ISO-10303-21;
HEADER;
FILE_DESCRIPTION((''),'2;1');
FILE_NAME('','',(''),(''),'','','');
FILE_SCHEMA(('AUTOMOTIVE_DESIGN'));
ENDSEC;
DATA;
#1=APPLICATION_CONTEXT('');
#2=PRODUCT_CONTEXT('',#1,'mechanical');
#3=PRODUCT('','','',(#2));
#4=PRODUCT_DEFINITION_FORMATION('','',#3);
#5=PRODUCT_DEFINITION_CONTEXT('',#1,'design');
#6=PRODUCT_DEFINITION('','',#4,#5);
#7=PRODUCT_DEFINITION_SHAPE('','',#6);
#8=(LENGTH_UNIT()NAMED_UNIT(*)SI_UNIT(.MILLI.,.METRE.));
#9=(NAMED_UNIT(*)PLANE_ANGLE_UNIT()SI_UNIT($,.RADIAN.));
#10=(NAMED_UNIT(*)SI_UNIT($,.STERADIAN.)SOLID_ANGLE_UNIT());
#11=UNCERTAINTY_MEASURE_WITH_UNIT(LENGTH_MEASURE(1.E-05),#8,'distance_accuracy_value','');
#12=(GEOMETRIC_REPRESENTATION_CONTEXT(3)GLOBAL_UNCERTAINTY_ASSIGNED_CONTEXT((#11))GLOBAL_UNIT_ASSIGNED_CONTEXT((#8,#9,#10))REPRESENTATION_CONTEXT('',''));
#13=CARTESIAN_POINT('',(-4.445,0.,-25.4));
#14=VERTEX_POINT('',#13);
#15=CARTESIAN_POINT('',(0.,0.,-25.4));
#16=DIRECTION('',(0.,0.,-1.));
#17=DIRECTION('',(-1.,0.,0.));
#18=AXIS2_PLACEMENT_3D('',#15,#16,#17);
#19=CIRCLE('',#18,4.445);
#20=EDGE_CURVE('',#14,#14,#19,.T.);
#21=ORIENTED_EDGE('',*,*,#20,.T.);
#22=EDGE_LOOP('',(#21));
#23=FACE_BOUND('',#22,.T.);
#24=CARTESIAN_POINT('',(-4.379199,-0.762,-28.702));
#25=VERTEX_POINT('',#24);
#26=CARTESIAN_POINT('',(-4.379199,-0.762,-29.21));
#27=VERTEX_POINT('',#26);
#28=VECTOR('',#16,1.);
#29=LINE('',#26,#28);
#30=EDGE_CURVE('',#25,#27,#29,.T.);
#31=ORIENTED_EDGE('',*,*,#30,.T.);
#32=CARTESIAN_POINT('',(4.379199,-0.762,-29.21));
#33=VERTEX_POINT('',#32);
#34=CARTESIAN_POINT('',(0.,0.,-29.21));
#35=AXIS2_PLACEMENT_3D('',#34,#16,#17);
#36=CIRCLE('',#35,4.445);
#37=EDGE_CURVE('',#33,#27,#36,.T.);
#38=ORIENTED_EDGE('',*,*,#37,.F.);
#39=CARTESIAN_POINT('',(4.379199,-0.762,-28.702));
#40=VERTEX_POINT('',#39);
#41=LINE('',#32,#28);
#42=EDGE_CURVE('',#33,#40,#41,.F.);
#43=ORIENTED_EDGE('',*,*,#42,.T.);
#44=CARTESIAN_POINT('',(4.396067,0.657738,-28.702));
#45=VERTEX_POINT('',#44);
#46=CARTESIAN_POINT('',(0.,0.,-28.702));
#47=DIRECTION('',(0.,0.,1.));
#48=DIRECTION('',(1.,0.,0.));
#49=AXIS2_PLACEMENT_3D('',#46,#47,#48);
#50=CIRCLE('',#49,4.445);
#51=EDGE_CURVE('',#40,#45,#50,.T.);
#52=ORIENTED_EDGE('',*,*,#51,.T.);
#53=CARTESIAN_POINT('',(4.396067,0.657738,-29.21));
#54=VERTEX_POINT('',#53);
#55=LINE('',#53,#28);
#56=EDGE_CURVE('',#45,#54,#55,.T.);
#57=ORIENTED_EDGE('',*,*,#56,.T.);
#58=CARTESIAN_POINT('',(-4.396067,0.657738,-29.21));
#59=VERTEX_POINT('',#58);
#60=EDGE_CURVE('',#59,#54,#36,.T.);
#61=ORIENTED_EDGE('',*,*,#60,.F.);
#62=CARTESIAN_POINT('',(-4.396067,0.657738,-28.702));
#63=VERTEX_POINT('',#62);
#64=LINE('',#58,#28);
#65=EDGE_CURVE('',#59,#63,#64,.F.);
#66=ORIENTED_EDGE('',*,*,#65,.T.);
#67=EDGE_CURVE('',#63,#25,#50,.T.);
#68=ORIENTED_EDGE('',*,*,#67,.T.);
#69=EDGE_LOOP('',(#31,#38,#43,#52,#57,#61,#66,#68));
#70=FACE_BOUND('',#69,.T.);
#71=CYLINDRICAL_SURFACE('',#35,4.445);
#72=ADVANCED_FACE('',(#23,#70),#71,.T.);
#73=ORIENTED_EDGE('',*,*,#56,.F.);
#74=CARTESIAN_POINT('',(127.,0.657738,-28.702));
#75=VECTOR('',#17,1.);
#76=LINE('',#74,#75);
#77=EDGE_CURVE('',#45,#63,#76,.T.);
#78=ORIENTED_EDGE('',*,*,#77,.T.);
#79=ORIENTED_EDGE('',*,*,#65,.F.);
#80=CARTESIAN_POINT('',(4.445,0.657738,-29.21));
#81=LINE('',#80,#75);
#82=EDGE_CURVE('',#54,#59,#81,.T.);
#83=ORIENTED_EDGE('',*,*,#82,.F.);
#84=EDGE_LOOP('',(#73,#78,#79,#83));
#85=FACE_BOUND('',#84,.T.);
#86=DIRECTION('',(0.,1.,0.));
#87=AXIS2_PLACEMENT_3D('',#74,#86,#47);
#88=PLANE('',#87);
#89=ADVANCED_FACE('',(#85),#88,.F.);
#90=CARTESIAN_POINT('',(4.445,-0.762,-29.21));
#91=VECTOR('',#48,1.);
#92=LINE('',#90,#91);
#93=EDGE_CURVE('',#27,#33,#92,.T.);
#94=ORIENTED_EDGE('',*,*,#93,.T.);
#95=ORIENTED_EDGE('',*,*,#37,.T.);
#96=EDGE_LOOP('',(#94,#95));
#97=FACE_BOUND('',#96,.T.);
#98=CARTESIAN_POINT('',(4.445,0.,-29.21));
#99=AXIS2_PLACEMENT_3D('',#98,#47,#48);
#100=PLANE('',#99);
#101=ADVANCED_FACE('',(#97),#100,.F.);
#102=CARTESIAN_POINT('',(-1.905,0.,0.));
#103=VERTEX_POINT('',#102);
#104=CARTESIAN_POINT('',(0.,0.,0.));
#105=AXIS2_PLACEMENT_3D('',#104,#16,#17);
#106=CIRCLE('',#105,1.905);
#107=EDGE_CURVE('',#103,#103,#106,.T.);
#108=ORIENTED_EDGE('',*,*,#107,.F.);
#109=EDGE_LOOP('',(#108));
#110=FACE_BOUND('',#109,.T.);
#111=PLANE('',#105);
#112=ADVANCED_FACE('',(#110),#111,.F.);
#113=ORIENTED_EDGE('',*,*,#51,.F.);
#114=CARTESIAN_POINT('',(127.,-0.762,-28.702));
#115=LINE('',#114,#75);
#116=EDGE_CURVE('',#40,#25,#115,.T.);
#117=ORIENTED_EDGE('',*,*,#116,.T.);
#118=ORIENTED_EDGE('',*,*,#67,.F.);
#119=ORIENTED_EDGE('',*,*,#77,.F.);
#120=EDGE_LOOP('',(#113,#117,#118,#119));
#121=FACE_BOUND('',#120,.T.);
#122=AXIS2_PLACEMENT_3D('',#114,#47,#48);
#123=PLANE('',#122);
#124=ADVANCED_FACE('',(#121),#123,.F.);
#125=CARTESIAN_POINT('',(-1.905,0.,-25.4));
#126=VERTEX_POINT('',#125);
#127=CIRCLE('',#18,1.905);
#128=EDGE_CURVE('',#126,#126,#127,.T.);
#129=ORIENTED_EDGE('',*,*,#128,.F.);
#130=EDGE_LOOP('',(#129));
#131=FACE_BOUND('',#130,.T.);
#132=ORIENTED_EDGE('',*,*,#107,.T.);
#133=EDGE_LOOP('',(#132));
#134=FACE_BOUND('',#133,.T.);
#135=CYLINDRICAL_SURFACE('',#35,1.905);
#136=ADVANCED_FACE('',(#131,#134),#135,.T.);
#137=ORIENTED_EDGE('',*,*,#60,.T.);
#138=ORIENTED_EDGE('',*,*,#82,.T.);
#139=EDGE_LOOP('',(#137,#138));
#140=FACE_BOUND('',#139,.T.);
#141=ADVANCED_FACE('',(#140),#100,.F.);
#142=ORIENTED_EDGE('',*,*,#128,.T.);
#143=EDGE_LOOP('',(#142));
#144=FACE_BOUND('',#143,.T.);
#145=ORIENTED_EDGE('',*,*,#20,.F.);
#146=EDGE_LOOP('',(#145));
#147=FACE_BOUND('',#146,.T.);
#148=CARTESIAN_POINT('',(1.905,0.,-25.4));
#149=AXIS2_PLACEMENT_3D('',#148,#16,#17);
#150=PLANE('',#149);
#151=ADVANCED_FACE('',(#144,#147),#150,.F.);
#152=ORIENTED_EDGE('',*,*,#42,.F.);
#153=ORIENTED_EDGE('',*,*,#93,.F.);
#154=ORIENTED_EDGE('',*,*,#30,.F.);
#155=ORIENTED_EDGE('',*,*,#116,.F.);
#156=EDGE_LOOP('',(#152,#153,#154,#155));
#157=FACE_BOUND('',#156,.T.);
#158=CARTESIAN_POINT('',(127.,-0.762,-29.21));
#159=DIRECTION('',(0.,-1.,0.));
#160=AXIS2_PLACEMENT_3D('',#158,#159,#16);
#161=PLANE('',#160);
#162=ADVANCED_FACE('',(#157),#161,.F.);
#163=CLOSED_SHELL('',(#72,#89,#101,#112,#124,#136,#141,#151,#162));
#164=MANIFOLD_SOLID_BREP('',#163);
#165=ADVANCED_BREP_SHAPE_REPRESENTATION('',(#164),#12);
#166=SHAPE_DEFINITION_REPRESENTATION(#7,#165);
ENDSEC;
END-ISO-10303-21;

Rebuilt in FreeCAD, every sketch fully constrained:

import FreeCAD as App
import Part
import Sketcher

V = App.Vector
Q = App.Units.Quantity


def add_polygon(sketch, points):
    """Adds a closed chain of lines whose ends are joined by coincident constraints."""
    first, n = sketch.GeometryCount, len(points)
    for a, b in zip(points, points[1:] + points[:1]):
        sketch.addGeometry(Part.LineSegment(App.Vector(*a, 0), App.Vector(*b, 0)), False)
    for i in range(n):
        sketch.addConstraint(Sketcher.Constraint("Coincident", first + i, 2, first + (i + 1) % n, 1))

doc = App.newDocument("Part")
body = doc.addObject("PartDesign::Body", "Body")

sketch1 = doc.addObject("Sketcher::SketchObject", "Sketch")
body.addObject(sketch1)
sketch1.AttachmentSupport = (doc.XZ_Plane, [""])
sketch1.MapMode = "FlatFace"
add_polygon(sketch1, [(0, 0), (1.9, 0), (1.9, -25.4), (4.4, -25.4), (4.4, -29.2), (0, -29.2)])
sketch1.addConstraint([
    Sketcher.Constraint("Horizontal", 0),
    Sketcher.Constraint("Vertical", 1),
    Sketcher.Constraint("Horizontal", 2),
    Sketcher.Constraint("Vertical", 3),
    Sketcher.Constraint("Horizontal", 4),
    Sketcher.Constraint("Vertical", 5),
    Sketcher.Constraint("Coincident", 5, 2, -1, 1),
    Sketcher.Constraint("DistanceY", 1, 2, 1, 1, Q("1 in")),
    Sketcher.Constraint("DistanceX", 2, 1, 2, 2, Q("0.1 in")),
    Sketcher.Constraint("DistanceY", 3, 2, 3, 1, Q("0.15 in")),
    Sketcher.Constraint("DistanceX", 0, 1, 0, 2, Q("0.075 in")),
])
revolution = doc.addObject("PartDesign::Revolution", "Revolution")
body.addObject(revolution)
revolution.Profile = sketch1
revolution.ReferenceAxis = (sketch1, ["V_Axis"])
revolution.Angle = 360

sketch2 = doc.addObject("Sketcher::SketchObject", "Sketch001")
body.addObject(sketch2)
sketch2.AttachmentSupport = (doc.YZ_Plane, [""])
sketch2.MapMode = "FlatFace"
add_polygon(sketch2, [(-0.8, -29.2), (0.7, -29.2), (0.7, -28.7), (-0.8, -28.7)])
sketch2.addConstraint([
    Sketcher.Constraint("Horizontal", 0),
    Sketcher.Constraint("Vertical", 1),
    Sketcher.Constraint("Horizontal", 2),
    Sketcher.Constraint("Vertical", 3),
    Sketcher.Constraint("DistanceY", 1, 1, 1, 2, Q("0.02 in")),
    Sketcher.Constraint("DistanceY", 0, 2, -1, 1, Q("1.15 in")),
    Sketcher.Constraint("DistanceX", 2, 2, -1, 1, Q("0.03 in")),
    Sketcher.Constraint("DistanceX", 0, 1, 0, 2, Q("1.419738 mm")),
])
pocket1 = doc.addObject("PartDesign::Pocket", "Pocket")
body.addObject(pocket1)
pocket1.Profile = sketch2
pocket1.Length = Q("10 in")
pocket1.Midplane = True

doc.recompute()
